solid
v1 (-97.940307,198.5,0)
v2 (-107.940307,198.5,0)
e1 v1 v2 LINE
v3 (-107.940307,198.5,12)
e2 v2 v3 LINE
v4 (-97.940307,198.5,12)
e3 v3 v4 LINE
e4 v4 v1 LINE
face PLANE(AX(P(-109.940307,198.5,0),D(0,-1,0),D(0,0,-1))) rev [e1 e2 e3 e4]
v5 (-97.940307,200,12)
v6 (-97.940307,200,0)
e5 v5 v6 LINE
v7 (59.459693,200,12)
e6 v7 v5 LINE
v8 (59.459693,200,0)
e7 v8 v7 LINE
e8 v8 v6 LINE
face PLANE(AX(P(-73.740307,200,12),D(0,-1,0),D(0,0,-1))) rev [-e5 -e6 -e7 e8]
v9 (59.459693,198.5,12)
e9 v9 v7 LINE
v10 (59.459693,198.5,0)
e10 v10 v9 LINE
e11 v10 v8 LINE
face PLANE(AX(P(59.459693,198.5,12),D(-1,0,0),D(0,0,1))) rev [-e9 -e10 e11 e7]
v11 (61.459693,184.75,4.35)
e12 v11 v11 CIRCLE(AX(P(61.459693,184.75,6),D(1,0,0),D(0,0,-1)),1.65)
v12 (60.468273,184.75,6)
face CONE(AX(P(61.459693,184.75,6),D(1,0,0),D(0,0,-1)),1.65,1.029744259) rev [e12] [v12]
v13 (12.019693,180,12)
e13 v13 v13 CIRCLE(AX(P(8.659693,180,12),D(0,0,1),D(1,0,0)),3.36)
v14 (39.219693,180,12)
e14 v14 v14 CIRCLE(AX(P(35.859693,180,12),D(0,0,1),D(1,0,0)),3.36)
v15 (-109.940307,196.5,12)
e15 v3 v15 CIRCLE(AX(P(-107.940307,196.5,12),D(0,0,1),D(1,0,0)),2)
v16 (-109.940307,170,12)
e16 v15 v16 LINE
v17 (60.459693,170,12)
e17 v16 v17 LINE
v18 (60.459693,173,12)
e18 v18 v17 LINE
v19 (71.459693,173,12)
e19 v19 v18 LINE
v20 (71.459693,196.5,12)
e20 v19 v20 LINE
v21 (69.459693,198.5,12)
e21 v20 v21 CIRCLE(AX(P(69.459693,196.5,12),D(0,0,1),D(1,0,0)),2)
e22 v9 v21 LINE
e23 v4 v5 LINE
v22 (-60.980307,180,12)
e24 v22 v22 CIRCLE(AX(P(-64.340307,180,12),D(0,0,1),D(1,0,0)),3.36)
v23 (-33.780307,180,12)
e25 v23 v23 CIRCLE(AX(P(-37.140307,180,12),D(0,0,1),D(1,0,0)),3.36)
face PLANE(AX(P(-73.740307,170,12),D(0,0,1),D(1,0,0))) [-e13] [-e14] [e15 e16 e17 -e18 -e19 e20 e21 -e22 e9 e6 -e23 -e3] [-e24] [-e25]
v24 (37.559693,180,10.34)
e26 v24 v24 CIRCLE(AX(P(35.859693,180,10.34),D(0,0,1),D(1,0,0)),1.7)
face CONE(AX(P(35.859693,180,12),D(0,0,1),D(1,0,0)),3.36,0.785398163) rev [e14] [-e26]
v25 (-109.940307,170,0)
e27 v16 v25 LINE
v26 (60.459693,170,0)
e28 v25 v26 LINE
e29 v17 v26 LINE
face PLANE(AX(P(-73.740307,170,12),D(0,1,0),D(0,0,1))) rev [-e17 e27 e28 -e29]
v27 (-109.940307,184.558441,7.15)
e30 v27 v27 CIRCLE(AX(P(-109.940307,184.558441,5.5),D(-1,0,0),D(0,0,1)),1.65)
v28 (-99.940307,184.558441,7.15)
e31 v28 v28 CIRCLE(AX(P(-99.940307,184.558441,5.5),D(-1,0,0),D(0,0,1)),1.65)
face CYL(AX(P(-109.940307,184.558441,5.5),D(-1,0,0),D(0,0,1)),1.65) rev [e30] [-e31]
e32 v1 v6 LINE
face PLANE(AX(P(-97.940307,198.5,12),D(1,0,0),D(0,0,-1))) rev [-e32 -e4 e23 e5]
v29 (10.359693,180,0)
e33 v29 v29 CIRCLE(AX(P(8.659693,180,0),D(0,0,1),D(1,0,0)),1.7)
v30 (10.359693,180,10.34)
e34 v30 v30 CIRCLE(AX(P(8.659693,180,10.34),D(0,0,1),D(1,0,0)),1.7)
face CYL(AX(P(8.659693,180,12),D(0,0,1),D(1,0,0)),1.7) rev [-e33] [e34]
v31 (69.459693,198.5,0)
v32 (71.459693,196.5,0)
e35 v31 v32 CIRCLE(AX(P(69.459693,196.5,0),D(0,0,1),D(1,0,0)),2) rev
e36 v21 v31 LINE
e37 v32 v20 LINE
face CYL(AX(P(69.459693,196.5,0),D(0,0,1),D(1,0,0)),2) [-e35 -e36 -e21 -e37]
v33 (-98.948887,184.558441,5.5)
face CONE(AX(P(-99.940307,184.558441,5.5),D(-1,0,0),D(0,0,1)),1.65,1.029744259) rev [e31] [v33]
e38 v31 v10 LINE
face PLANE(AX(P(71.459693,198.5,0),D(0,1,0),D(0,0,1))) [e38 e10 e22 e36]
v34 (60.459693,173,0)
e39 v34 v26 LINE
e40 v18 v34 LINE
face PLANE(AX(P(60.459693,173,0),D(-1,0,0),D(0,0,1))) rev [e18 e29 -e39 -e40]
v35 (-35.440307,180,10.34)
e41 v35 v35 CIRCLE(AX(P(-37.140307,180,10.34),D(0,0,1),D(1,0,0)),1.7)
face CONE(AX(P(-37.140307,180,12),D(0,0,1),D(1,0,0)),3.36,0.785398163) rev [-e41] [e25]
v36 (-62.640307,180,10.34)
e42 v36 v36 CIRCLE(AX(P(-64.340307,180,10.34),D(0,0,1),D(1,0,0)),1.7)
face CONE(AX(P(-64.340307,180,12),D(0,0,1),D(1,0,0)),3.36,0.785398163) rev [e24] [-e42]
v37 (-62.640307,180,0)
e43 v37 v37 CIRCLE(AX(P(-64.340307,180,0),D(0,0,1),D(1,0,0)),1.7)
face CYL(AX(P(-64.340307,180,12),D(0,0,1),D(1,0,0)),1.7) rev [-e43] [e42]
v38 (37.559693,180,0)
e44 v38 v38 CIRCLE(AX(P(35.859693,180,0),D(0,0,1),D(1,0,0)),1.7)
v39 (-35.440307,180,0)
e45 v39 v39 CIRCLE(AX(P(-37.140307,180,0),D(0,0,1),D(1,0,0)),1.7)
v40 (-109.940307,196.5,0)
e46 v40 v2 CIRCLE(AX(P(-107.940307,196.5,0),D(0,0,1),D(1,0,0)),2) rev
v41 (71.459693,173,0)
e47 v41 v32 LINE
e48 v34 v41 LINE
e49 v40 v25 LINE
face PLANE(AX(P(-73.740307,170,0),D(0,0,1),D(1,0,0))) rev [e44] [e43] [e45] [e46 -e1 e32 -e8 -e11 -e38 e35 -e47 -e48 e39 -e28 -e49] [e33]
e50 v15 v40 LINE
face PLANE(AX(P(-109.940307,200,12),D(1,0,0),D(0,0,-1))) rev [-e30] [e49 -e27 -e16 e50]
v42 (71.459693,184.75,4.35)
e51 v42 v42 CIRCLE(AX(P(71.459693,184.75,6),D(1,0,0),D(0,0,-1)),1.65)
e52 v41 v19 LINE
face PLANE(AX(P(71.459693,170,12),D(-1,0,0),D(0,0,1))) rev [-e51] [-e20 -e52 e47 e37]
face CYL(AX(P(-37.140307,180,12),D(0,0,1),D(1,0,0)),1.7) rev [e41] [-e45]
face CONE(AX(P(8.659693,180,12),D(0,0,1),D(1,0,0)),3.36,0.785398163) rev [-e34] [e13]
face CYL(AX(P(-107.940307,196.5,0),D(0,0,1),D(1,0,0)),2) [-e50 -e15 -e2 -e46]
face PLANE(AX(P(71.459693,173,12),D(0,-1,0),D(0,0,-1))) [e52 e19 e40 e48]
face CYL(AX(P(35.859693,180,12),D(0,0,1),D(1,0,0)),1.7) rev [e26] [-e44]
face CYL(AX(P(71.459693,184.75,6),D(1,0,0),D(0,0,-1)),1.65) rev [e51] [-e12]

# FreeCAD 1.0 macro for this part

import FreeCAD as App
import Part
import Sketcher
Q = App.Units.Quantity


def edges_at(feature, points):
    """Names of the edges that pass closest to the given points."""
    edges = feature.Shape.Edges
    near = lambda p: min(range(len(edges)), key=lambda i: edges[i].distToShape(Part.Vertex(*p))[0])
    return sorted({f"Edge{near(p) + 1}" for p in points})


def add_polygon(sketch, points):
    """Adds a closed chain of lines whose ends are joined by coincident constraints."""
    first, n = sketch.GeometryCount, len(points)
    for a, b in zip(points, points[1:] + points[:1]):
        sketch.addGeometry(Part.LineSegment(App.Vector(*a, 0), App.Vector(*b, 0)), False)
    for i in range(n):
        sketch.addConstraint(Sketcher.Constraint("Coincident", first + i, 2, first + (i + 1) % n, 1))

doc = App.newDocument("Part")
body = doc.addObject("PartDesign::Body", "Body")

# Sketch on XY plane
sketch1 = body.newObject("Sketcher::SketchObject", "Sketch")
sketch1.AttachmentSupport = (doc.getObject("XY_Plane"), [""])
sketch1.MapMode = "FlatFace"
add_polygon(sketch1, [(-74, 200), (-74, 170), (45, 170), (45, 200)])  # lines 0-3
sketch1.addConstraint(Sketcher.Constraint("Vertical", 0))
sketch1.addConstraint(Sketcher.Constraint("Horizontal", 1))
sketch1.addConstraint(Sketcher.Constraint("Vertical", 2))
sketch1.addConstraint(Sketcher.Constraint("Horizontal", 3))
sketch1.addConstraint(Sketcher.Constraint("DistanceX", 1, 1, 1, 2, Q("119 mm")))
sketch1.addConstraint(Sketcher.Constraint("DistanceY", 0, 2, 0, 1, Q("30 mm")))
sketch1.addConstraint(Sketcher.Constraint("DistanceY", -1, 1, 0, 2, Q("170 mm")))
sketch1.addConstraint(Sketcher.Constraint("DistanceX", 0, 2, -1, 1, Q("73.740307 mm")))
pad1 = body.newObject("PartDesign::Pad", "Pad")
pad1.Profile = sketch1
pad1.Length = 12

# Sketch on XY plane
sketch2 = body.newObject("Sketcher::SketchObject", "Sketch001")
sketch2.AttachmentSupport = (doc.getObject("XY_Plane"), [""])
sketch2.MapMode = "FlatFace"
sketch2.AttachmentOffset = App.Placement(App.Vector(0, 0, 12), App.Rotation())
sketch2.addGeometry(Part.Circle(App.Vector(35.9, 180, 0), App.Vector(0, 0, 1), 1.7), False)
sketch2.addGeometry(Part.Circle(App.Vector(-64.3, 180, 0), App.Vector(0, 0, 1), 1.7), False)
sketch2.addGeometry(Part.Circle(App.Vector(-37.1, 180, 0), App.Vector(0, 0, 1), 1.7), False)
sketch2.addGeometry(Part.Circle(App.Vector(8.7, 180, 0), App.Vector(0, 0, 1), 1.7), False)
sketch2.addConstraint(Sketcher.Constraint("Equal", 0, 1))
sketch2.addConstraint(Sketcher.Constraint("Equal", 1, 2))
sketch2.addConstraint(Sketcher.Constraint("Equal", 2, 3))
sketch2.addConstraint(Sketcher.Constraint("Horizontal", 0, 3, 1, 3))
sketch2.addConstraint(Sketcher.Constraint("Horizontal", 1, 3, 2, 3))
sketch2.addConstraint(Sketcher.Constraint("Horizontal", 2, 3, 3, 3))
sketch2.addConstraint(Sketcher.Constraint("Diameter", 0, Q("3.4 mm")))
sketch2.addConstraint(Sketcher.Constraint("DistanceY", -1, 1, 0, 3, Q("180 mm")))
sketch2.addConstraint(Sketcher.Constraint("DistanceX", 2, 3, 0, 3, Q("73 mm")))
sketch2.addConstraint(Sketcher.Constraint("DistanceX", 1, 3, 3, 3, Q("73 mm")))
sketch2.addConstraint(Sketcher.Constraint("DistanceX", 1, 3, 0, 3, Q("100.2 mm")))
sketch2.addConstraint(Sketcher.Constraint("DistanceX", -1, 1, 0, 3, Q("35.859693 mm")))
doc.recompute()
hole = body.newObject("PartDesign::Hole", "Hole")
hole.Profile = sketch2
hole.ThreadType = "None"
hole.Diameter = 3.4
hole.DepthType = "ThroughAll"
hole.HoleCutType = "Countersink"
hole.HoleCutDiameter = 6.72
hole.HoleCutCountersinkAngle = 90

# Sketch on XY plane
sketch3 = body.newObject("Sketcher::SketchObject", "Sketch002")
sketch3.AttachmentSupport = (doc.getObject("XY_Plane"), [""])
sketch3.MapMode = "FlatFace"
add_polygon(sketch3, [(-110, 200), (-110, 170), (-74, 170), (-74, 200)])  # lines 0-3
sketch3.addConstraint(Sketcher.Constraint("Vertical", 0))
sketch3.addConstraint(Sketcher.Constraint("Horizontal", 1))
sketch3.addConstraint(Sketcher.Constraint("Vertical", 2))
sketch3.addConstraint(Sketcher.Constraint("Horizontal", 3))
sketch3.addConstraint(Sketcher.Constraint("DistanceY", 0, 2, 0, 1, Q("30 mm")))
sketch3.addConstraint(Sketcher.Constraint("DistanceX", 1, 1, 1, 2, Q("36.2 mm")))
sketch3.addConstraint(Sketcher.Constraint("DistanceY", -1, 1, 0, 2, Q("170 mm")))
sketch3.addConstraint(Sketcher.Constraint("DistanceX", 0, 2, -1, 1, Q("109.940307 mm")))
pad2 = body.newObject("PartDesign::Pad", "Pad001")
pad2.Profile = sketch3
pad2.Length = 12

# Sketch on XY plane
sketch4 = body.newObject("Sketcher::SketchObject", "Sketch003")
sketch4.AttachmentSupport = (doc.getObject("XY_Plane"), [""])
sketch4.MapMode = "FlatFace"
add_polygon(sketch4, [(45, 200), (45, 170), (71, 170), (71, 200)])  # lines 0-3
sketch4.addConstraint(Sketcher.Constraint("Vertical", 0))
sketch4.addConstraint(Sketcher.Constraint("Horizontal", 1))
sketch4.addConstraint(Sketcher.Constraint("Vertical", 2))
sketch4.addConstraint(Sketcher.Constraint("Horizontal", 3))
sketch4.addConstraint(Sketcher.Constraint("DistanceY", 0, 2, 0, 1, Q("30 mm")))
sketch4.addConstraint(Sketcher.Constraint("DistanceX", 1, 1, 1, 2, Q("26.2 mm")))
sketch4.addConstraint(Sketcher.Constraint("DistanceY", -1, 1, 0, 2, Q("170 mm")))
sketch4.addConstraint(Sketcher.Constraint("DistanceX", -1, 1, 0, 2, Q("45.259693 mm")))
pad3 = body.newObject("PartDesign::Pad", "Pad002")
pad3.Profile = sketch4
pad3.Length = 12

# Sketch on XZ plane
sketch5 = body.newObject("Sketcher::SketchObject", "Sketch004")
sketch5.AttachmentSupport = (doc.getObject("XZ_Plane"), [""])
sketch5.MapMode = "FlatFace"
sketch5.AttachmentOffset = App.Placement(App.Vector(0, 0, -200), App.Rotation())
add_polygon(sketch5, [(59, 0), (59, 12), (71, 12), (71, 0)])  # lines 0-3
sketch5.addConstraint(Sketcher.Constraint("Vertical", 0))
sketch5.addConstraint(Sketcher.Constraint("Horizontal", 1))
sketch5.addConstraint(Sketcher.Constraint("Vertical", 2))
sketch5.addConstraint(Sketcher.Constraint("Horizontal", 3))
sketch5.addConstraint(Sketcher.Constraint("PointOnObject", 2, 2, -1))
sketch5.addConstraint(Sketcher.Constraint("Equal", 3, 0))
sketch5.addConstraint(Sketcher.Constraint("DistanceX", 1, 1, 1, 2, Q("12 mm")))
sketch5.addConstraint(Sketcher.Constraint("DistanceX", -1, 1, 0, 2, Q("59.459693 mm")))
pocket1 = body.newObject("PartDesign::Pocket", "Pocket")
pocket1.Profile = sketch5
pocket1.Length = 1.5
pocket1.Reversed = True
doc.recompute()

fillet = body.newObject("PartDesign::Fillet", "Fillet")
fillet.Base = (pocket1, edges_at(pocket1, [(71.46, 198.5, 6)]))
fillet.Radius = 2

# Sketch on XZ plane
sketch6 = body.newObject("Sketcher::SketchObject", "Sketch005")
sketch6.AttachmentSupport = (doc.getObject("XZ_Plane"), [""])
sketch6.MapMode = "FlatFace"
sketch6.AttachmentOffset = App.Placement(App.Vector(0, 0, -170), App.Rotation())
add_polygon(sketch6, [(60, 12), (60, 0), (71, 0), (71, 12)])  # lines 0-3
sketch6.addConstraint(Sketcher.Constraint("Vertical", 0))
sketch6.addConstraint(Sketcher.Constraint("Horizontal", 1))
sketch6.addConstraint(Sketcher.Constraint("Vertical", 2))
sketch6.addConstraint(Sketcher.Constraint("Horizontal", 3))
sketch6.addConstraint(Sketcher.Constraint("PointOnObject", 0, 2, -1))
sketch6.addConstraint(Sketcher.Constraint("DistanceX", 1, 1, 1, 2, Q("11 mm")))
sketch6.addConstraint(Sketcher.Constraint("DistanceY", 0, 2, 0, 1, Q("12 mm")))
sketch6.addConstraint(Sketcher.Constraint("DistanceX", -1, 1, 0, 2, Q("60.459693 mm")))
pocket2 = body.newObject("PartDesign::Pocket", "Pocket001")
pocket2.Profile = sketch6
pocket2.Length = 3

# Sketch on YZ plane
sketch7 = body.newObject("Sketcher::SketchObject", "Sketch006")
sketch7.AttachmentSupport = (doc.getObject("YZ_Plane"), [""])
sketch7.MapMode = "FlatFace"
sketch7.AttachmentOffset = App.Placement(App.Vector(0, 0, 71.459693), App.Rotation())
sketch7.addGeometry(Part.Circle(App.Vector(184.8, 6, 0), App.Vector(0, 0, 1), 1.6), False)
sketch7.addConstraint(Sketcher.Constraint("Diameter", 0, Q("3.3 mm")))
sketch7.addConstraint(Sketcher.Constraint("DistanceY", -1, 1, 0, 3, Q("6 mm")))
sketch7.addConstraint(Sketcher.Constraint("DistanceX", -1, 1, 0, 3, Q("184.75 mm")))
doc.recompute()
hole2 = body.newObject("PartDesign::Hole", "Hole001")
hole2.Profile = sketch7
hole2.ThreadType = "None"
hole2.Diameter = 3.3
hole2.DepthType = "Dimension"
hole2.Depth = 10
hole2.DrillPoint = "Angled"
hole2.DrillPointAngle = 118

# Sketch on XZ plane
sketch8 = body.newObject("Sketcher::SketchObject", "Sketch007")
sketch8.AttachmentSupport = (doc.getObject("XZ_Plane"), [""])
sketch8.MapMode = "FlatFace"
sketch8.AttachmentOffset = App.Placement(App.Vector(0, 0, -200), App.Rotation())
add_polygon(sketch8, [(-98, 12), (-98, 0), (-110, 0), (-110, 12)])  # lines 0-3
sketch8.addConstraint(Sketcher.Constraint("Vertical", 0))
sketch8.addConstraint(Sketcher.Constraint("Horizontal", 1))
sketch8.addConstraint(Sketcher.Constraint("Vertical", 2))
sketch8.addConstraint(Sketcher.Constraint("Horizontal", 3))
sketch8.addConstraint(Sketcher.Constraint("PointOnObject", 0, 2, -1))
sketch8.addConstraint(Sketcher.Constraint("Equal", 3, 0))
sketch8.addConstraint(Sketcher.Constraint("DistanceX", 1, 2, 1, 1, Q("12 mm")))
sketch8.addConstraint(Sketcher.Constraint("DistanceX", 0, 2, -1, 1, Q("97.940307 mm")))
pocket3 = body.newObject("PartDesign::Pocket", "Pocket002")
pocket3.Profile = sketch8
pocket3.Length = 1.5
pocket3.Reversed = True
doc.recompute()

fillet2 = body.newObject("PartDesign::Fillet", "Fillet001")
fillet2.Base = (pocket3, edges_at(pocket3, [(-109.94, 198.5, 6)]))
fillet2.Radius = 2

# Sketch on YZ plane
sketch9 = body.newObject("Sketcher::SketchObject", "Sketch008")
sketch9.AttachmentSupport = (doc.getObject("YZ_Plane"), [""])
sketch9.MapMode = "FlatFace"
sketch9.AttachmentOffset = App.Placement(App.Vector(0, 0, -109.940307), App.Rotation())
sketch9.addGeometry(Part.Circle(App.Vector(184.6, 5.5, 0), App.Vector(0, 0, 1), 1.6), False)
sketch9.addGeometry(Part.Circle(App.Vector(184.8, -130.6, 0), App.Vector(0, 0, 1), 1.6), False)
sketch9.addConstraint(Sketcher.Constraint("Equal", 0, 1))
sketch9.addConstraint(Sketcher.Constraint("Diameter", 0, Q("3.3 mm")))
sketch9.addConstraint(Sketcher.Constraint("DistanceY", -1, 1, 0, 3, Q("5.5 mm")))
sketch9.addConstraint(Sketcher.Constraint("DistanceY", 1, 3, -1, 1, Q("130.6 mm")))
sketch9.addConstraint(Sketcher.Constraint("DistanceX", -1, 1, 1, 3, Q("184.75 mm")))
sketch9.addConstraint(Sketcher.Constraint("DistanceX", -1, 1, 0, 3, Q("184.558441 mm")))
doc.recompute()
hole3 = body.newObject("PartDesign::Hole", "Hole002")
hole3.Profile = sketch9
hole3.ThreadType = "None"
hole3.Diameter = 3.3
hole3.DepthType = "Dimension"
hole3.Depth = 10
hole3.DrillPoint = "Angled"
hole3.DrillPointAngle = 118
hole3.Reversed = True

doc.recompute()
